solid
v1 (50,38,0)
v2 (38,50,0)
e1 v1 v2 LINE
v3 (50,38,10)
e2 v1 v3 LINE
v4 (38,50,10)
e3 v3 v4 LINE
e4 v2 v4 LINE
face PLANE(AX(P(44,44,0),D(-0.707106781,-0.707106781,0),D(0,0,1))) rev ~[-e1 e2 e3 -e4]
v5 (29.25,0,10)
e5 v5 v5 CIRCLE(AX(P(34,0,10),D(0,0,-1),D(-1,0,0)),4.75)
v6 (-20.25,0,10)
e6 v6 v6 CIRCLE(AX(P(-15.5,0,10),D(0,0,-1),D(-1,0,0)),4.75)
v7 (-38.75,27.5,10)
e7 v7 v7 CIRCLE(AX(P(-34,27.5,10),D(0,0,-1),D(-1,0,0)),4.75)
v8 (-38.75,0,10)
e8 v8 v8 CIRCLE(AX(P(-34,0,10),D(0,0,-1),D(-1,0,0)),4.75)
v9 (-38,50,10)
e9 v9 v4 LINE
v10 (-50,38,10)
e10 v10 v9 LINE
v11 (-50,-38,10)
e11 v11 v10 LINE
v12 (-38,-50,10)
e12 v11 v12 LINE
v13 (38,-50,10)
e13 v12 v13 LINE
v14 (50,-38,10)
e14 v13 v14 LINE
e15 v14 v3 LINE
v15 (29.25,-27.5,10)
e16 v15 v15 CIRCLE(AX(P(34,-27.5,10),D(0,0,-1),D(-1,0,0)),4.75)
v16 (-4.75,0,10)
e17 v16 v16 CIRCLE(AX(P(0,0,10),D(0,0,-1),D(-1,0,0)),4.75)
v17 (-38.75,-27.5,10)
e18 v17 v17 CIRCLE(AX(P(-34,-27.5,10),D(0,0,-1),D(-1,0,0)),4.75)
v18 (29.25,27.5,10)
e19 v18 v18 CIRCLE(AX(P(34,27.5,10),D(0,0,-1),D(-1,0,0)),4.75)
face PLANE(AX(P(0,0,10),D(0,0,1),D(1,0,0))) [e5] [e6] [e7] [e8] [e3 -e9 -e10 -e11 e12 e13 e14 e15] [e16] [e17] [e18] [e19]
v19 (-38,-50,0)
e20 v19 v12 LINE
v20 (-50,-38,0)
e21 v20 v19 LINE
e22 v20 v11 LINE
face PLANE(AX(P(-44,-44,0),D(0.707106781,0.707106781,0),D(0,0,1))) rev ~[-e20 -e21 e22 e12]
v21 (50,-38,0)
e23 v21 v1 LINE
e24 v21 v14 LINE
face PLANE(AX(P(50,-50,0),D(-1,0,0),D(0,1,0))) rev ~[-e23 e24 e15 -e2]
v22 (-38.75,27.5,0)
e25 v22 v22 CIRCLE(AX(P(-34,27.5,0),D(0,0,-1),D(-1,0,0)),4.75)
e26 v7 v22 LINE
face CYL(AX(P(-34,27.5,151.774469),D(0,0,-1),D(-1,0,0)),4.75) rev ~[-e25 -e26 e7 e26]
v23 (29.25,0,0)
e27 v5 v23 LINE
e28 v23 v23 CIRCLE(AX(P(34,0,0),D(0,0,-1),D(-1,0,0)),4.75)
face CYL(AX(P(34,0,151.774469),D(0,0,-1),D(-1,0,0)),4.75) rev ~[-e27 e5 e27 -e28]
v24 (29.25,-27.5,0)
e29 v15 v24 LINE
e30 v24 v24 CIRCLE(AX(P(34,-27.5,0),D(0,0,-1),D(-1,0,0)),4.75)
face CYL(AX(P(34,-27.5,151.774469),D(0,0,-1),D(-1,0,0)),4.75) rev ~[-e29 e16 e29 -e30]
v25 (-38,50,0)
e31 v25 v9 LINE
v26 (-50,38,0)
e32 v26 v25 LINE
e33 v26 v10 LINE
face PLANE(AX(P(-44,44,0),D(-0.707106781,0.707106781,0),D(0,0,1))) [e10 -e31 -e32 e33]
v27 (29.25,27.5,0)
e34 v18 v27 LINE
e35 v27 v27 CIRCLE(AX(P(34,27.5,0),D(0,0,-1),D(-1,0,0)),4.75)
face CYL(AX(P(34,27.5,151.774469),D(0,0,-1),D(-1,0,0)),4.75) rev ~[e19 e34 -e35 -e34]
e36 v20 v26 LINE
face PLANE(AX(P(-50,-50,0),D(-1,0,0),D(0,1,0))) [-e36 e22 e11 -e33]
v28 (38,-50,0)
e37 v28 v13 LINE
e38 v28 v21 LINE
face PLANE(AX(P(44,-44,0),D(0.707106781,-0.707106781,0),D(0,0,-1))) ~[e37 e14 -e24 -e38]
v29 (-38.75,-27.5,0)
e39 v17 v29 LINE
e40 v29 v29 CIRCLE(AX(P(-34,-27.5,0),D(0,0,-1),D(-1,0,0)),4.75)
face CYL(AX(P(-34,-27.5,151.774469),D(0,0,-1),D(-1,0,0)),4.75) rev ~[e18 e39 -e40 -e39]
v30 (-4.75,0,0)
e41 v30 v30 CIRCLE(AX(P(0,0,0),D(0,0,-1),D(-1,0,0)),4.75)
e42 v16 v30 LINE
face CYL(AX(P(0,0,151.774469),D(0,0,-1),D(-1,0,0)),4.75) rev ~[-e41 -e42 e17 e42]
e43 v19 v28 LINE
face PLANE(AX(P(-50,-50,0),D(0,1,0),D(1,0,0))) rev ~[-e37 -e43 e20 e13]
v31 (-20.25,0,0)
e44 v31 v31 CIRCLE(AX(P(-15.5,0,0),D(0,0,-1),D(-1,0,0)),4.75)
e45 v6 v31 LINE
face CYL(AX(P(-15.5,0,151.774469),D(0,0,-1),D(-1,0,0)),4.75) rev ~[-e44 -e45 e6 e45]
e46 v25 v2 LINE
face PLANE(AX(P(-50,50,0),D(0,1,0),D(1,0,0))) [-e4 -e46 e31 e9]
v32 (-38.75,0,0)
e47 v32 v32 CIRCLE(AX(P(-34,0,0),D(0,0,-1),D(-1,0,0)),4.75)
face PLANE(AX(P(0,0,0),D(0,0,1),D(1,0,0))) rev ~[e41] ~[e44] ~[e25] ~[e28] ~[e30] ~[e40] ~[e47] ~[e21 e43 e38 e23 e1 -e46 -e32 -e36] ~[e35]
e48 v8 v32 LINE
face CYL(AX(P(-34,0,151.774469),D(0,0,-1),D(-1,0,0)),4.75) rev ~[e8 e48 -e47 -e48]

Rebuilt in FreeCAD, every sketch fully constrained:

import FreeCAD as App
import Part
import Sketcher
from FreeCAD import Vector
Q = App.Units.Quantity


def edges_at(feature, points):
    """Names of the edges that pass closest to the given points."""
    edges = feature.Shape.Edges
    near = lambda p: min(range(len(edges)), key=lambda i: edges[i].distToShape(Part.Vertex(*p))[0])
    return sorted({f"Edge{near(p) + 1}" for p in points})

doc = App.newDocument("Part")
body = doc.addObject("PartDesign::Body", "Body")

sketch1 = body.newObject("Sketcher::SketchObject", "Sketch")
sketch1.AttachmentSupport = (doc.getObject("XY_Plane"), [""])
sketch1.MapMode = "FlatFace"
sketch1.addGeometry(Part.LineSegment(Vector(-50, 50, 0), Vector(-50, -50, 0)), False)
sketch1.addGeometry(Part.LineSegment(Vector(-50, -50, 0), Vector(50, -50, 0)), False)
sketch1.addGeometry(Part.LineSegment(Vector(50, -50, 0), Vector(50, 50, 0)), False)
sketch1.addGeometry(Part.LineSegment(Vector(50, 50, 0), Vector(-50, 50, 0)), False)
sketch1.addConstraint(Sketcher.Constraint("Coincident", 0, 2, 1, 1))
sketch1.addConstraint(Sketcher.Constraint("Coincident", 1, 2, 2, 1))
sketch1.addConstraint(Sketcher.Constraint("Coincident", 2, 2, 3, 1))
sketch1.addConstraint(Sketcher.Constraint("Coincident", 3, 2, 0, 1))
sketch1.addConstraint(Sketcher.Constraint("Vertical", 0))
sketch1.addConstraint(Sketcher.Constraint("Horizontal", 1))
sketch1.addConstraint(Sketcher.Constraint("Vertical", 2))
sketch1.addConstraint(Sketcher.Constraint("Horizontal", 3))
sketch1.addConstraint(Sketcher.Constraint("Symmetric", 0, 2, 2, 2, -1, 1))
sketch1.addConstraint(Sketcher.Constraint("Equal", 3, 0))
sketch1.addConstraint(Sketcher.Constraint("DistanceX", 1, 1, 1, 2, Q("100 mm")))
pad1 = body.newObject("PartDesign::Pad", "Pad")
pad1.Profile = sketch1
pad1.Length = 10
doc.recompute()

chamfer = body.newObject("PartDesign::Chamfer", "Chamfer")
chamfer.Base = (pad1, edges_at(pad1, [
    (50, -50, 5),
    (50, 50, 5),
    (-50, -50, 5),
    (-50, 50, 5),
]))
chamfer.Size = 12

sketch2 = body.newObject("Sketcher::SketchObject", "Sketch001")
sketch2.AttachmentSupport = (doc.getObject("XY_Plane"), [""])
sketch2.MapMode = "FlatFace"
sketch2.AttachmentOffset = App.Placement(Vector(0, 0, 10), App.Rotation())
sketch2.addGeometry(Part.Circle(Vector(-15.5, 0, 0), Vector(0, 0, 1), 4.8), False)
sketch2.addGeometry(Part.Circle(Vector(-34, 0, 0), Vector(0, 0, 1), 4.8), False)
sketch2.addGeometry(Part.Circle(Vector(-34, -27.5, 0), Vector(0, 0, 1), 4.8), False)
sketch2.addGeometry(Part.Circle(Vector(-34, 27.5, 0), Vector(0, 0, 1), 4.8), False)
sketch2.addGeometry(Part.Circle(Vector(34, 27.5, 0), Vector(0, 0, 1), 4.8), False)
sketch2.addGeometry(Part.Circle(Vector(34, 0, 0), Vector(0, 0, 1), 4.8), False)
sketch2.addGeometry(Part.Circle(Vector(34, -27.5, 0), Vector(0, 0, 1), 4.8), False)
sketch2.addGeometry(Part.Circle(Vector(0, 0, 0), Vector(0, 0, 1), 4.8), False)
sketch2.addConstraint(Sketcher.Constraint("Coincident", 7, 3, -1, 1))
sketch2.addConstraint(Sketcher.Constraint("Equal", 0, 1))
sketch2.addConstraint(Sketcher.Constraint("Equal", 1, 2))
sketch2.addConstraint(Sketcher.Constraint("Equal", 2, 3))
sketch2.addConstraint(Sketcher.Constraint("Equal", 3, 4))
sketch2.addConstraint(Sketcher.Constraint("Equal", 4, 5))
sketch2.addConstraint(Sketcher.Constraint("Equal", 5, 6))
sketch2.addConstraint(Sketcher.Constraint("Equal", 6, 7))
sketch2.addConstraint(Sketcher.Constraint("Symmetric", 2, 3, 4, 3, -1, 1))
sketch2.addConstraint(Sketcher.Constraint("Symmetric", 1, 3, 5, 3, -1, 1))
sketch2.addConstraint(Sketcher.Constraint("Symmetric", 3, 3, 6, 3, -1, 1))
sketch2.addConstraint(Sketcher.Constraint("Symmetric", 3, 3, 4, 3, -2))
sketch2.addConstraint(Sketcher.Constraint("PointOnObject", 0, 3, -1))
sketch2.addConstraint(Sketcher.Constraint("PointOnObject", 1, 3, -1))
sketch2.addConstraint(Sketcher.Constraint("Vertical", 1, 3, 2, 3))
sketch2.addConstraint(Sketcher.Constraint("Diameter", 0, Q("9.5 mm")))
sketch2.addConstraint(Sketcher.Constraint("DistanceX", 1, 3, -1, 1, Q("34 mm")))
sketch2.addConstraint(Sketcher.Constraint("DistanceY", 2, 3, 3, 3, Q("55 mm")))
sketch2.addConstraint(Sketcher.Constraint("DistanceX", 0, 3, -1, 1, Q("15.5 mm")))
doc.recompute()
hole = body.newObject("PartDesign::Hole", "Hole")
hole.Profile = sketch2
hole.ThreadType = "None"
hole.Diameter = 9.5
hole.DepthType = "ThroughAll"

doc.recompute()
